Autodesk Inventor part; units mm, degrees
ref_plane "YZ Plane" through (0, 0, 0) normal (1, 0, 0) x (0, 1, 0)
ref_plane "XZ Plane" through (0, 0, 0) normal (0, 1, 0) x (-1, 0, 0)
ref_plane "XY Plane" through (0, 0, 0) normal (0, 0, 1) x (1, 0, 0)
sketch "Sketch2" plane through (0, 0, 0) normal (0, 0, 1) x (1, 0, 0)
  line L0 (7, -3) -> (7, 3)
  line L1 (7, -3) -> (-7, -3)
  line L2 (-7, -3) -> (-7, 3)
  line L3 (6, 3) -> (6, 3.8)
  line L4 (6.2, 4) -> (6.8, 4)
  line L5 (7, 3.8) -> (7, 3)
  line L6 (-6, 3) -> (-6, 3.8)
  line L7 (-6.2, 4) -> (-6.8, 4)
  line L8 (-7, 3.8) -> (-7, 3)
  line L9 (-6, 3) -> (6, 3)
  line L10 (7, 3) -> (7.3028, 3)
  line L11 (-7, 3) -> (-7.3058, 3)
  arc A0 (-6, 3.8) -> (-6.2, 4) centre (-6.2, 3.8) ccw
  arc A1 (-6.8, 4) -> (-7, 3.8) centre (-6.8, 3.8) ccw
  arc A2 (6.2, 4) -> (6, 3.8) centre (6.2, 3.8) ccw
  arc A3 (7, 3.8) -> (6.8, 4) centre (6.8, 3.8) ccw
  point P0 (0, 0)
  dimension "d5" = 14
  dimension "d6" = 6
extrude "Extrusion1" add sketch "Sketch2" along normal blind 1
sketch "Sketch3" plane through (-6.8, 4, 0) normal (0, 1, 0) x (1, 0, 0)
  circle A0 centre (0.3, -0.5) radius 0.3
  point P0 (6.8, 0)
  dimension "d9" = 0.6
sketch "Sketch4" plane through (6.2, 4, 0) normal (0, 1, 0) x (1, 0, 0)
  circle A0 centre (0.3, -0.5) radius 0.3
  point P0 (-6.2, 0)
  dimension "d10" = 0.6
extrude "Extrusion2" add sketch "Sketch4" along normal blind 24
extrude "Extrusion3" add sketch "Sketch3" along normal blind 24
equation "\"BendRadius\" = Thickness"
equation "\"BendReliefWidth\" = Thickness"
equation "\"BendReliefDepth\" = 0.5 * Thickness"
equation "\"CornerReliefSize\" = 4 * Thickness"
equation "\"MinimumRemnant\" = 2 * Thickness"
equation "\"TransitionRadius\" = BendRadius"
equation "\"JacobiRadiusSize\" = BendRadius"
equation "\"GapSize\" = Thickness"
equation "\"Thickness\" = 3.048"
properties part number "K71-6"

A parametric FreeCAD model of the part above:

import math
import FreeCAD as App
import Part
import Sketcher

V = App.Vector
Q = App.Units.Quantity

doc = App.newDocument("Part")
body = doc.addObject("PartDesign::Body", "Body")

# Sketch on XY plane
sketch1 = body.newObject("Sketcher::SketchObject", "Sketch")
sketch1.AttachmentSupport = (doc.getObject("XY_Plane"), [""])
sketch1.MapMode = "FlatFace"
sketch1.addGeometry([
    Part.LineSegment(V(-7, -3, 0), V(7, -3, 0)),  # 0
    Part.LineSegment(V(7, -3, 0), V(7, 3.8, 0)),  # 1
    Part.ArcOfCircle(Part.Circle(V(6.8, 3.8, 0), V(0, 0, 1), 0.2), math.radians(0), math.radians(90)),  # 2
    Part.LineSegment(V(6.8, 4, 0), V(6.2, 4, 0)),  # 3
    Part.ArcOfCircle(Part.Circle(V(6.2, 3.8, 0), V(0, 0, 1), 0.2), math.radians(90), math.radians(180)),  # 4
    Part.LineSegment(V(6, 3.8, 0), V(6, 3, 0)),  # 5
    Part.LineSegment(V(6, 3, 0), V(-6, 3, 0)),  # 6
    Part.LineSegment(V(-6, 3, 0), V(-6, 3.8, 0)),  # 7
    Part.ArcOfCircle(Part.Circle(V(-6.2, 3.8, 0), V(0, 0, 1), 0.2), math.radians(0), math.radians(90)),  # 8
    Part.LineSegment(V(-6.2, 4, 0), V(-6.8, 4, 0)),  # 9
    Part.ArcOfCircle(Part.Circle(V(-6.8, 3.8, 0), V(0, 0, 1), 0.2), math.radians(90), math.radians(180)),  # 10
    Part.LineSegment(V(-7, 3.8, 0), V(-7, -3, 0)),  # 11
], False)
sketch1.addConstraint([
    Sketcher.Constraint("Coincident", 0, 2, 1, 1),
    Sketcher.Constraint("Tangent", 1, 2, 2, 1),
    Sketcher.Constraint("Tangent", 2, 2, 3, 1),
    Sketcher.Constraint("Tangent", 3, 2, 4, 1),
    Sketcher.Constraint("Tangent", 4, 2, 5, 1),
    Sketcher.Constraint("Coincident", 5, 2, 6, 1),
    Sketcher.Constraint("Coincident", 6, 2, 7, 1),
    Sketcher.Constraint("Tangent", 7, 2, 8, 1),
    Sketcher.Constraint("Tangent", 8, 2, 9, 1),
    Sketcher.Constraint("Tangent", 9, 2, 10, 1),
    Sketcher.Constraint("Tangent", 10, 2, 11, 1),
    Sketcher.Constraint("Coincident", 11, 2, 0, 1),
    Sketcher.Constraint("Horizontal", 0),
    Sketcher.Constraint("Vertical", 1),
    Sketcher.Constraint("Horizontal", 3),
    Sketcher.Constraint("Vertical", 5),
    Sketcher.Constraint("Horizontal", 6),
    Sketcher.Constraint("Vertical", 7),
    Sketcher.Constraint("Horizontal", 9),
    Sketcher.Constraint("Vertical", 11),
    Sketcher.Constraint("Equal", 2, 4),
    Sketcher.Constraint("Equal", 4, 8),
    Sketcher.Constraint("Equal", 8, 10),
    Sketcher.Constraint("Symmetric", 4, 3, 8, 3, -2),
    Sketcher.Constraint("Equal", 3, 9),
    Sketcher.Constraint("DistanceX", 0, 1, 0, 2, Q("14 mm")),
    Sketcher.Constraint("DistanceX", -1, 1, 4, 2, Q("6 mm")),
    Sketcher.Constraint("DistanceY", 11, 2, 6, 2, Q("6 mm")),
    Sketcher.Constraint("Radius", 2, Q("0.2 mm")),
    Sketcher.Constraint("DistanceY", 1, 1, 1, 2, Q("6.8 mm")),
    Sketcher.Constraint("DistanceY", 0, 2, -1, 1, Q("3 mm")),
])
pad1 = body.newObject("PartDesign::Pad", "Pad")
pad1.Profile = sketch1
pad1.Length = 1

# Sketch on XZ plane
sketch2 = body.newObject("Sketcher::SketchObject", "Sketch001")
sketch2.AttachmentSupport = (doc.getObject("XZ_Plane"), [""])
sketch2.MapMode = "FlatFace"
sketch2.AttachmentOffset = App.Placement(V(0, 0, -4), App.Rotation())
sketch2.addGeometry(Part.Circle(V(6.5, 0.5, 0), V(0, 0, 1), 0.3), False)
sketch2.addConstraint([
    Sketcher.Constraint("Diameter", 0, Q("0.6 mm")),
    Sketcher.Constraint("DistanceX", -1, 1, 0, 3, Q("6.5 mm")),
    Sketcher.Constraint("DistanceY", -1, 1, 0, 3, Q("0.5 mm")),
])
pad2 = body.newObject("PartDesign::Pad", "Pad001")
pad2.Profile = sketch2
pad2.Length = 24
pad2.Reversed = True

# Sketch on XZ plane
sketch3 = body.newObject("Sketcher::SketchObject", "Sketch002")
sketch3.AttachmentSupport = (doc.getObject("XZ_Plane"), [""])
sketch3.MapMode = "FlatFace"
sketch3.AttachmentOffset = App.Placement(V(0, 0, -4), App.Rotation())
sketch3.addGeometry(Part.Circle(V(-6.5, 0.5, 0), V(0, 0, 1), 0.3), False)
sketch3.addConstraint([
    Sketcher.Constraint("Diameter", 0, Q("0.6 mm")),
    Sketcher.Constraint("DistanceX", 0, 3, -1, 1, Q("6.5 mm")),
    Sketcher.Constraint("DistanceY", -1, 1, 0, 3, Q("0.5 mm")),
])
pad3 = body.newObject("PartDesign::Pad", "Pad002")
pad3.Profile = sketch3
pad3.Length = 24
pad3.Reversed = True

doc.recompute()
